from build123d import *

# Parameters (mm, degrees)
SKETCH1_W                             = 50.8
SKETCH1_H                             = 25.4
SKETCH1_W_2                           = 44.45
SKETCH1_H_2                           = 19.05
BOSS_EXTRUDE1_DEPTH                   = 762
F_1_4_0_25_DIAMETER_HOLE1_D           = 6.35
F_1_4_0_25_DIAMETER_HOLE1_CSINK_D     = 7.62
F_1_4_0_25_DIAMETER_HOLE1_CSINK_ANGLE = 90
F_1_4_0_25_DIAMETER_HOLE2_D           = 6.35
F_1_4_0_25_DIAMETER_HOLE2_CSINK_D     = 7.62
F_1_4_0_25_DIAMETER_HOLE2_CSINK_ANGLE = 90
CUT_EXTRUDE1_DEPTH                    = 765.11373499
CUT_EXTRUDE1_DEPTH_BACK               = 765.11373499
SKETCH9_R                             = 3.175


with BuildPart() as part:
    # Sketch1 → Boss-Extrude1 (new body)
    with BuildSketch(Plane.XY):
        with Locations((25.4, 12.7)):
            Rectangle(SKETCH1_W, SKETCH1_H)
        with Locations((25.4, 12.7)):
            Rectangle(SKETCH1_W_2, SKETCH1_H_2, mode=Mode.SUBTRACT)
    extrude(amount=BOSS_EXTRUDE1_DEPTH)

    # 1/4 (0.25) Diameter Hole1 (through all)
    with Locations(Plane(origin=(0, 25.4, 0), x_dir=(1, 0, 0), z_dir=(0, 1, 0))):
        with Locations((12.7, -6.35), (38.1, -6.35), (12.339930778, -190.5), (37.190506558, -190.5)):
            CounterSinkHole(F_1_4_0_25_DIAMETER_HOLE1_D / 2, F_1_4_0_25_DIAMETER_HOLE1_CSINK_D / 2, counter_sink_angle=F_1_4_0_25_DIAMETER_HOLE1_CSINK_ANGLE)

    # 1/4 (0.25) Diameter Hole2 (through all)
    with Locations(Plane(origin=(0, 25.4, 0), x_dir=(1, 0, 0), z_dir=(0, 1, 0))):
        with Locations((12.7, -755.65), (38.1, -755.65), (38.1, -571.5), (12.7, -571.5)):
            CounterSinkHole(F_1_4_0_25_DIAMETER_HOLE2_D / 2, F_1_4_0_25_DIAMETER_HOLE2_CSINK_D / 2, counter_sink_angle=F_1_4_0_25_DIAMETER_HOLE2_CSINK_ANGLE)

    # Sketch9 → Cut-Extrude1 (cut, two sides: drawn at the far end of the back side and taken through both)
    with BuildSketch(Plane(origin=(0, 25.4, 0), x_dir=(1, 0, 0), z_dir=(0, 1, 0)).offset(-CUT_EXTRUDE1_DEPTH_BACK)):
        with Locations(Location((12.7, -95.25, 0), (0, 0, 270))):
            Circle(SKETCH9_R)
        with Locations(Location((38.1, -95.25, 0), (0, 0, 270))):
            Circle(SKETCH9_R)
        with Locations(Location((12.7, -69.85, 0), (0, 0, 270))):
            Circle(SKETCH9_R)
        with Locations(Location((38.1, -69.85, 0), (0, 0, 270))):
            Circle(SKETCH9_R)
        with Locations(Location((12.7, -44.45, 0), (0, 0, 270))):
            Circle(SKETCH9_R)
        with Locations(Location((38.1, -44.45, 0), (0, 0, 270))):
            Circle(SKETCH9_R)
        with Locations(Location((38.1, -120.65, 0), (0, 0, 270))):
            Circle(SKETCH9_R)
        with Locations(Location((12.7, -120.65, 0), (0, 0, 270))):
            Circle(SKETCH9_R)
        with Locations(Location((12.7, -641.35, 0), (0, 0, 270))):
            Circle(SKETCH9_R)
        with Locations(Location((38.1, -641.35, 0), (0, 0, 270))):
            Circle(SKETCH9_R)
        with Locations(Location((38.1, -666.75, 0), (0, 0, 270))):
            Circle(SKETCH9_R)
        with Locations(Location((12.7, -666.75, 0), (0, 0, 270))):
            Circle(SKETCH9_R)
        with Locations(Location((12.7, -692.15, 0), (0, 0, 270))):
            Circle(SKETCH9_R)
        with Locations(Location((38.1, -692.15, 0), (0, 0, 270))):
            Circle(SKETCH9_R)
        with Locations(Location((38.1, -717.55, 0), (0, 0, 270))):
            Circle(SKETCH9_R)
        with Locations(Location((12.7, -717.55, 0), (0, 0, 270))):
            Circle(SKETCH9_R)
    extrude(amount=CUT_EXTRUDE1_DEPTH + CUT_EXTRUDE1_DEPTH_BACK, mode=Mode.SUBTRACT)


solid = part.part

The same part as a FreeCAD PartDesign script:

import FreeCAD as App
import Part
import Sketcher
from FreeCAD import Vector
Q = App.Units.Quantity


def add_polygon(sketch, points):
    """Adds a closed chain of lines whose ends are joined by coincident constraints."""
    first, n = sketch.GeometryCount, len(points)
    for a, b in zip(points, points[1:] + points[:1]):
        sketch.addGeometry(Part.LineSegment(App.Vector(*a, 0), App.Vector(*b, 0)), False)
    for i in range(n):
        sketch.addConstraint(Sketcher.Constraint("Coincident", first + i, 2, first + (i + 1) % n, 1))

doc = App.newDocument("Part")
params = doc.addObject("Spreadsheet::Sheet", "Params")
for row, (alias, value) in enumerate([
    ("sketch1_width", "2 in"),
    ("sketch1_height", "1 in"),
    ("sketch1_width2", "1.75 in"),
    ("sketch1_height2", "0.75 in"),
    ("pad1_length", "30 in"),
    ("sketch2_diameter", "0.25 in"),
    ("hole_diameter", "0.25 in"),
    ("hole_csink_diameter", "0.3 in"),
    ("sketch3_diameter", "0.25 in"),
    ("hole2_diameter", "0.25 in"),
    ("hole2_csink_diameter", "0.3 in"),
    ("sketch4_diameter", "0.25 in"),
], start=1):
    params.set(f"A{row}", alias)
    params.set(f"B{row}", "=" + value)
    params.setAlias(f"B{row}", alias)

body = doc.addObject("PartDesign::Body", "Body")

# Sketch on XY plane
sketch1 = doc.addObject("Sketcher::SketchObject", "Sketch")
body.addObject(sketch1)
sketch1.AttachmentSupport = (doc.XY_Plane, [""])
sketch1.MapMode = "FlatFace"
add_polygon(sketch1, [(0, 25), (0, 0), (51, 0), (51, 25)])  # lines 0-3
add_polygon(sketch1, [(48, 3), (3, 3), (3, 22), (48, 22)])  # lines 4-7
sketch1.addConstraint([
    Sketcher.Constraint("Vertical", 0),
    Sketcher.Constraint("Horizontal", 1),
    Sketcher.Constraint("Vertical", 2),
    Sketcher.Constraint("Horizontal", 3),
    Sketcher.Constraint("Horizontal", 4),
    Sketcher.Constraint("Vertical", 5),
    Sketcher.Constraint("Horizontal", 6),
    Sketcher.Constraint("Vertical", 7),
    Sketcher.Constraint("Coincident", 0, 2, -1, 1),
    Sketcher.Constraint("DistanceX", 1, 1, 1, 2, Q("2 in")),
    Sketcher.Constraint("DistanceY", 0, 2, 0, 1, Q("1 in")),
    Sketcher.Constraint("DistanceX", 4, 2, 4, 1, Q("1.75 in")),
    Sketcher.Constraint("DistanceY", 5, 1, 5, 2, Q("0.75 in")),
    Sketcher.Constraint("DistanceX", -1, 1, 4, 2, Q("0.125 in")),
    Sketcher.Constraint("DistanceY", -1, 1, 4, 2, Q("0.125 in")),
])
sketch1.setExpression("Constraints[17]", "Params.sketch1_width")
sketch1.setExpression("Constraints[18]", "Params.sketch1_height")
sketch1.setExpression("Constraints[19]", "Params.sketch1_width2")
sketch1.setExpression("Constraints[20]", "Params.sketch1_height2")
pad1 = doc.addObject("PartDesign::Pad", "Pad")
body.addObject(pad1)
pad1.Profile = sketch1
pad1.setExpression("Length", "Params.pad1_length")

# Sketch on XZ plane
sketch2 = doc.addObject("Sketcher::SketchObject", "Sketch001")
body.addObject(sketch2)
sketch2.AttachmentSupport = (doc.XZ_Plane, [""])
sketch2.MapMode = "FlatFace"
sketch2.AttachmentOffset = App.Placement(Vector(0, 0, -1 * 25.4), App.Rotation())
sketch2.addGeometry([
    Part.Circle(Vector(12.7, 6.3, 0), Vector(0, 0, 1), 3.2),
    Part.Circle(Vector(38.1, 6.3, 0), Vector(0, 0, 1), 3.2),
    Part.Circle(Vector(12.3, 190.5, 0), Vector(0, 0, 1), 3.2),
    Part.Circle(Vector(37.2, 190.5, 0), Vector(0, 0, 1), 3.2),
], False)
sketch2.addConstraint([
    Sketcher.Constraint("Equal", 0, 1),
    Sketcher.Constraint("Equal", 1, 2),
    Sketcher.Constraint("Equal", 2, 3),
    Sketcher.Constraint("Horizontal", 0, 3, 1, 3),
    Sketcher.Constraint("Horizontal", 2, 3, 3, 3),
    Sketcher.Constraint("Diameter", 0, Q("0.25 in")),
    Sketcher.Constraint("DistanceX", 0, 3, 1, 3, Q("1 in")),
    Sketcher.Constraint("DistanceX", -1, 1, 0, 3, Q("0.5 in")),
    Sketcher.Constraint("DistanceY", -1, 1, 2, 3, Q("7.5 in")),
    Sketcher.Constraint("DistanceY", -1, 1, 0, 3, Q("0.25 in")),
    Sketcher.Constraint("DistanceX", -1, 1, 2, 3, Q("12.339931 mm")),
    Sketcher.Constraint("DistanceX", -1, 1, 3, 3, Q("37.190507 mm")),
])
sketch2.setExpression("Constraints[5]", "Params.sketch2_diameter")
doc.recompute()
hole = doc.addObject("PartDesign::Hole", "Hole")
body.addObject(hole)
hole.Profile = sketch2
hole.ThreadType = "None"
hole.setExpression("Diameter", "Params.hole_diameter")
hole.DepthType = "ThroughAll"
hole.HoleCutType = "Countersink"
hole.setExpression("HoleCutDiameter", "Params.hole_csink_diameter")
hole.HoleCutCountersinkAngle = 90
hole.Reversed = True

# Sketch on XZ plane
sketch3 = doc.addObject("Sketcher::SketchObject", "Sketch002")
body.addObject(sketch3)
sketch3.AttachmentSupport = (doc.XZ_Plane, [""])
sketch3.MapMode = "FlatFace"
sketch3.AttachmentOffset = App.Placement(Vector(0, 0, -1 * 25.4), App.Rotation())
sketch3.addGeometry([
    Part.Circle(Vector(12.7, 755.6, 0), Vector(0, 0, 1), 3.2),
    Part.Circle(Vector(38.1, 755.6, 0), Vector(0, 0, 1), 3.2),
    Part.Circle(Vector(38.1, 571.5, 0), Vector(0, 0, 1), 3.2),
    Part.Circle(Vector(12.7, 571.5, 0), Vector(0, 0, 1), 3.2),
], False)
sketch3.addConstraint([
    Sketcher.Constraint("Equal", 0, 1),
    Sketcher.Constraint("Equal", 1, 2),
    Sketcher.Constraint("Equal", 2, 3),
    Sketcher.Constraint("Horizontal", 0, 3, 1, 3),
    Sketcher.Constraint("Horizontal", 2, 3, 3, 3),
    Sketcher.Constraint("Vertical", 1, 3, 2, 3),
    Sketcher.Constraint("Vertical", 0, 3, 3, 3),
    Sketcher.Constraint("Diameter", 0, Q("0.25 in")),
    Sketcher.Constraint("DistanceX", 0, 3, 1, 3, Q("1 in")),
    Sketcher.Constraint("DistanceX", -1, 1, 0, 3, Q("0.5 in")),
    Sketcher.Constraint("DistanceY", -1, 1, 2, 3, Q("22.5 in")),
    Sketcher.Constraint("DistanceY", -1, 1, 0, 3, Q("29.75 in")),
])
sketch3.setExpression("Constraints[7]", "Params.sketch3_diameter")
doc.recompute()
hole2 = doc.addObject("PartDesign::Hole", "Hole001")
body.addObject(hole2)
hole2.Profile = sketch3
hole2.ThreadType = "None"
hole2.setExpression("Diameter", "Params.hole2_diameter")
hole2.DepthType = "ThroughAll"
hole2.HoleCutType = "Countersink"
hole2.setExpression("HoleCutDiameter", "Params.hole2_csink_diameter")
hole2.HoleCutCountersinkAngle = 90
hole2.Reversed = True

# Sketch on XZ plane
sketch4 = doc.addObject("Sketcher::SketchObject", "Sketch003")
body.addObject(sketch4)
sketch4.AttachmentSupport = (doc.XZ_Plane, [""])
sketch4.MapMode = "FlatFace"
sketch4.AttachmentOffset = App.Placement(Vector(0, 0, -1 * 25.4), App.Rotation())
sketch4.addGeometry([
    Part.Circle(Vector(12.7, 95.2, 0), Vector(0, 0, 1), 3.2),  # 0
    Part.Circle(Vector(38.1, 95.2, 0), Vector(0, 0, 1), 3.2),  # 1
    Part.Circle(Vector(12.7, 69.8, 0), Vector(0, 0, 1), 3.2),  # 2
    Part.Circle(Vector(38.1, 69.8, 0), Vector(0, 0, 1), 3.2),  # 3
    Part.Circle(Vector(12.7, 44.5, 0), Vector(0, 0, 1), 3.2),  # 4
    Part.Circle(Vector(38.1, 44.5, 0), Vector(0, 0, 1), 3.2),  # 5
    Part.Circle(Vector(38.1, 120.7, 0), Vector(0, 0, 1), 3.2),  # 6
    Part.Circle(Vector(12.7, 120.7, 0), Vector(0, 0, 1), 3.2),  # 7
    Part.Circle(Vector(12.7, 641.4, 0), Vector(0, 0, 1), 3.2),  # 8
    Part.Circle(Vector(38.1, 641.4, 0), Vector(0, 0, 1), 3.2),  # 9
    Part.Circle(Vector(38.1, 666.8, 0), Vector(0, 0, 1), 3.2),  # 10
    Part.Circle(Vector(12.7, 666.8, 0), Vector(0, 0, 1), 3.2),  # 11
    Part.Circle(Vector(12.7, 692.1, 0), Vector(0, 0, 1), 3.2),  # 12
    Part.Circle(Vector(38.1, 692.1, 0), Vector(0, 0, 1), 3.2),  # 13
    Part.Circle(Vector(38.1, 717.5, 0), Vector(0, 0, 1), 3.2),  # 14
    Part.Circle(Vector(12.7, 717.5, 0), Vector(0, 0, 1), 3.2),  # 15
], False)
sketch4.addConstraint([
    Sketcher.Constraint("Equal", 0, 1),
    Sketcher.Constraint("Equal", 1, 2),
    Sketcher.Constraint("Equal", 2, 3),
    Sketcher.Constraint("Equal", 3, 4),
    Sketcher.Constraint("Equal", 4, 5),
    Sketcher.Constraint("Equal", 5, 6),
    Sketcher.Constraint("Equal", 6, 7),
    Sketcher.Constraint("Equal", 7, 8),
    Sketcher.Constraint("Equal", 8, 9),
    Sketcher.Constraint("Equal", 9, 10),
    Sketcher.Constraint("Equal", 10, 11),
    Sketcher.Constraint("Equal", 11, 12),
    Sketcher.Constraint("Equal", 12, 13),
    Sketcher.Constraint("Equal", 13, 14),
    Sketcher.Constraint("Equal", 14, 15),
    Sketcher.Constraint("Horizontal", 0, 3, 1, 3),
    Sketcher.Constraint("Horizontal", 2, 3, 3, 3),
    Sketcher.Constraint("Horizontal", 4, 3, 5, 3),
    Sketcher.Constraint("Horizontal", 6, 3, 7, 3),
    Sketcher.Constraint("Horizontal", 8, 3, 9, 3),
    Sketcher.Constraint("Horizontal", 10, 3, 11, 3),
    Sketcher.Constraint("Horizontal", 12, 3, 13, 3),
    Sketcher.Constraint("Horizontal", 14, 3, 15, 3),
    Sketcher.Constraint("Vertical", 0, 3, 2, 3),
    Sketcher.Constraint("Vertical", 1, 3, 3, 3),
    Sketcher.Constraint("Vertical", 2, 3, 4, 3),
    Sketcher.Constraint("Vertical", 3, 3, 5, 3),
    Sketcher.Constraint("Vertical", 5, 3, 6, 3),
    Sketcher.Constraint("Vertical", 4, 3, 7, 3),
    Sketcher.Constraint("Vertical", 7, 3, 8, 3),
    Sketcher.Constraint("Vertical", 6, 3, 9, 3),
    Sketcher.Constraint("Vertical", 9, 3, 10, 3),
    Sketcher.Constraint("Vertical", 8, 3, 11, 3),
    Sketcher.Constraint("Vertical", 11, 3, 12, 3),
    Sketcher.Constraint("Vertical", 10, 3, 13, 3),
    Sketcher.Constraint("Vertical", 13, 3, 14, 3),
    Sketcher.Constraint("Vertical", 12, 3, 15, 3),
    Sketcher.Constraint("Diameter", 0, Q("0.25 in")),
    Sketcher.Constraint("DistanceX", 0, 3, 1, 3, Q("1 in")),
    Sketcher.Constraint("DistanceY", 2, 3, 0, 3, Q("1 in")),
    Sketcher.Constraint("DistanceY", 4, 3, 2, 3, Q("1 in")),
    Sketcher.Constraint("DistanceY", 1, 3, 6, 3, Q("1 in")),
    Sketcher.Constraint("DistanceY", 9, 3, 10, 3, Q("1 in")),
    Sketcher.Constraint("DistanceY", 11, 3, 12, 3, Q("1 in")),
    Sketcher.Constraint("DistanceY", 13, 3, 14, 3, Q("1 in")),
    Sketcher.Constraint("DistanceX", -1, 1, 0, 3, Q("0.5 in")),
    Sketcher.Constraint("DistanceY", 7, 3, 8, 3, Q("20.5 in")),
    Sketcher.Constraint("DistanceY", -1, 1, 0, 3, Q("3.75 in")),
])
sketch4.setExpression("Constraints[37]", "Params.sketch4_diameter")
pocket1 = doc.addObject("PartDesign::Pocket", "Pocket")
body.addObject(pocket1)
pocket1.Profile = sketch4
pocket1.Type = "ThroughAll"
pocket1.Midplane = True

doc.recompute()
